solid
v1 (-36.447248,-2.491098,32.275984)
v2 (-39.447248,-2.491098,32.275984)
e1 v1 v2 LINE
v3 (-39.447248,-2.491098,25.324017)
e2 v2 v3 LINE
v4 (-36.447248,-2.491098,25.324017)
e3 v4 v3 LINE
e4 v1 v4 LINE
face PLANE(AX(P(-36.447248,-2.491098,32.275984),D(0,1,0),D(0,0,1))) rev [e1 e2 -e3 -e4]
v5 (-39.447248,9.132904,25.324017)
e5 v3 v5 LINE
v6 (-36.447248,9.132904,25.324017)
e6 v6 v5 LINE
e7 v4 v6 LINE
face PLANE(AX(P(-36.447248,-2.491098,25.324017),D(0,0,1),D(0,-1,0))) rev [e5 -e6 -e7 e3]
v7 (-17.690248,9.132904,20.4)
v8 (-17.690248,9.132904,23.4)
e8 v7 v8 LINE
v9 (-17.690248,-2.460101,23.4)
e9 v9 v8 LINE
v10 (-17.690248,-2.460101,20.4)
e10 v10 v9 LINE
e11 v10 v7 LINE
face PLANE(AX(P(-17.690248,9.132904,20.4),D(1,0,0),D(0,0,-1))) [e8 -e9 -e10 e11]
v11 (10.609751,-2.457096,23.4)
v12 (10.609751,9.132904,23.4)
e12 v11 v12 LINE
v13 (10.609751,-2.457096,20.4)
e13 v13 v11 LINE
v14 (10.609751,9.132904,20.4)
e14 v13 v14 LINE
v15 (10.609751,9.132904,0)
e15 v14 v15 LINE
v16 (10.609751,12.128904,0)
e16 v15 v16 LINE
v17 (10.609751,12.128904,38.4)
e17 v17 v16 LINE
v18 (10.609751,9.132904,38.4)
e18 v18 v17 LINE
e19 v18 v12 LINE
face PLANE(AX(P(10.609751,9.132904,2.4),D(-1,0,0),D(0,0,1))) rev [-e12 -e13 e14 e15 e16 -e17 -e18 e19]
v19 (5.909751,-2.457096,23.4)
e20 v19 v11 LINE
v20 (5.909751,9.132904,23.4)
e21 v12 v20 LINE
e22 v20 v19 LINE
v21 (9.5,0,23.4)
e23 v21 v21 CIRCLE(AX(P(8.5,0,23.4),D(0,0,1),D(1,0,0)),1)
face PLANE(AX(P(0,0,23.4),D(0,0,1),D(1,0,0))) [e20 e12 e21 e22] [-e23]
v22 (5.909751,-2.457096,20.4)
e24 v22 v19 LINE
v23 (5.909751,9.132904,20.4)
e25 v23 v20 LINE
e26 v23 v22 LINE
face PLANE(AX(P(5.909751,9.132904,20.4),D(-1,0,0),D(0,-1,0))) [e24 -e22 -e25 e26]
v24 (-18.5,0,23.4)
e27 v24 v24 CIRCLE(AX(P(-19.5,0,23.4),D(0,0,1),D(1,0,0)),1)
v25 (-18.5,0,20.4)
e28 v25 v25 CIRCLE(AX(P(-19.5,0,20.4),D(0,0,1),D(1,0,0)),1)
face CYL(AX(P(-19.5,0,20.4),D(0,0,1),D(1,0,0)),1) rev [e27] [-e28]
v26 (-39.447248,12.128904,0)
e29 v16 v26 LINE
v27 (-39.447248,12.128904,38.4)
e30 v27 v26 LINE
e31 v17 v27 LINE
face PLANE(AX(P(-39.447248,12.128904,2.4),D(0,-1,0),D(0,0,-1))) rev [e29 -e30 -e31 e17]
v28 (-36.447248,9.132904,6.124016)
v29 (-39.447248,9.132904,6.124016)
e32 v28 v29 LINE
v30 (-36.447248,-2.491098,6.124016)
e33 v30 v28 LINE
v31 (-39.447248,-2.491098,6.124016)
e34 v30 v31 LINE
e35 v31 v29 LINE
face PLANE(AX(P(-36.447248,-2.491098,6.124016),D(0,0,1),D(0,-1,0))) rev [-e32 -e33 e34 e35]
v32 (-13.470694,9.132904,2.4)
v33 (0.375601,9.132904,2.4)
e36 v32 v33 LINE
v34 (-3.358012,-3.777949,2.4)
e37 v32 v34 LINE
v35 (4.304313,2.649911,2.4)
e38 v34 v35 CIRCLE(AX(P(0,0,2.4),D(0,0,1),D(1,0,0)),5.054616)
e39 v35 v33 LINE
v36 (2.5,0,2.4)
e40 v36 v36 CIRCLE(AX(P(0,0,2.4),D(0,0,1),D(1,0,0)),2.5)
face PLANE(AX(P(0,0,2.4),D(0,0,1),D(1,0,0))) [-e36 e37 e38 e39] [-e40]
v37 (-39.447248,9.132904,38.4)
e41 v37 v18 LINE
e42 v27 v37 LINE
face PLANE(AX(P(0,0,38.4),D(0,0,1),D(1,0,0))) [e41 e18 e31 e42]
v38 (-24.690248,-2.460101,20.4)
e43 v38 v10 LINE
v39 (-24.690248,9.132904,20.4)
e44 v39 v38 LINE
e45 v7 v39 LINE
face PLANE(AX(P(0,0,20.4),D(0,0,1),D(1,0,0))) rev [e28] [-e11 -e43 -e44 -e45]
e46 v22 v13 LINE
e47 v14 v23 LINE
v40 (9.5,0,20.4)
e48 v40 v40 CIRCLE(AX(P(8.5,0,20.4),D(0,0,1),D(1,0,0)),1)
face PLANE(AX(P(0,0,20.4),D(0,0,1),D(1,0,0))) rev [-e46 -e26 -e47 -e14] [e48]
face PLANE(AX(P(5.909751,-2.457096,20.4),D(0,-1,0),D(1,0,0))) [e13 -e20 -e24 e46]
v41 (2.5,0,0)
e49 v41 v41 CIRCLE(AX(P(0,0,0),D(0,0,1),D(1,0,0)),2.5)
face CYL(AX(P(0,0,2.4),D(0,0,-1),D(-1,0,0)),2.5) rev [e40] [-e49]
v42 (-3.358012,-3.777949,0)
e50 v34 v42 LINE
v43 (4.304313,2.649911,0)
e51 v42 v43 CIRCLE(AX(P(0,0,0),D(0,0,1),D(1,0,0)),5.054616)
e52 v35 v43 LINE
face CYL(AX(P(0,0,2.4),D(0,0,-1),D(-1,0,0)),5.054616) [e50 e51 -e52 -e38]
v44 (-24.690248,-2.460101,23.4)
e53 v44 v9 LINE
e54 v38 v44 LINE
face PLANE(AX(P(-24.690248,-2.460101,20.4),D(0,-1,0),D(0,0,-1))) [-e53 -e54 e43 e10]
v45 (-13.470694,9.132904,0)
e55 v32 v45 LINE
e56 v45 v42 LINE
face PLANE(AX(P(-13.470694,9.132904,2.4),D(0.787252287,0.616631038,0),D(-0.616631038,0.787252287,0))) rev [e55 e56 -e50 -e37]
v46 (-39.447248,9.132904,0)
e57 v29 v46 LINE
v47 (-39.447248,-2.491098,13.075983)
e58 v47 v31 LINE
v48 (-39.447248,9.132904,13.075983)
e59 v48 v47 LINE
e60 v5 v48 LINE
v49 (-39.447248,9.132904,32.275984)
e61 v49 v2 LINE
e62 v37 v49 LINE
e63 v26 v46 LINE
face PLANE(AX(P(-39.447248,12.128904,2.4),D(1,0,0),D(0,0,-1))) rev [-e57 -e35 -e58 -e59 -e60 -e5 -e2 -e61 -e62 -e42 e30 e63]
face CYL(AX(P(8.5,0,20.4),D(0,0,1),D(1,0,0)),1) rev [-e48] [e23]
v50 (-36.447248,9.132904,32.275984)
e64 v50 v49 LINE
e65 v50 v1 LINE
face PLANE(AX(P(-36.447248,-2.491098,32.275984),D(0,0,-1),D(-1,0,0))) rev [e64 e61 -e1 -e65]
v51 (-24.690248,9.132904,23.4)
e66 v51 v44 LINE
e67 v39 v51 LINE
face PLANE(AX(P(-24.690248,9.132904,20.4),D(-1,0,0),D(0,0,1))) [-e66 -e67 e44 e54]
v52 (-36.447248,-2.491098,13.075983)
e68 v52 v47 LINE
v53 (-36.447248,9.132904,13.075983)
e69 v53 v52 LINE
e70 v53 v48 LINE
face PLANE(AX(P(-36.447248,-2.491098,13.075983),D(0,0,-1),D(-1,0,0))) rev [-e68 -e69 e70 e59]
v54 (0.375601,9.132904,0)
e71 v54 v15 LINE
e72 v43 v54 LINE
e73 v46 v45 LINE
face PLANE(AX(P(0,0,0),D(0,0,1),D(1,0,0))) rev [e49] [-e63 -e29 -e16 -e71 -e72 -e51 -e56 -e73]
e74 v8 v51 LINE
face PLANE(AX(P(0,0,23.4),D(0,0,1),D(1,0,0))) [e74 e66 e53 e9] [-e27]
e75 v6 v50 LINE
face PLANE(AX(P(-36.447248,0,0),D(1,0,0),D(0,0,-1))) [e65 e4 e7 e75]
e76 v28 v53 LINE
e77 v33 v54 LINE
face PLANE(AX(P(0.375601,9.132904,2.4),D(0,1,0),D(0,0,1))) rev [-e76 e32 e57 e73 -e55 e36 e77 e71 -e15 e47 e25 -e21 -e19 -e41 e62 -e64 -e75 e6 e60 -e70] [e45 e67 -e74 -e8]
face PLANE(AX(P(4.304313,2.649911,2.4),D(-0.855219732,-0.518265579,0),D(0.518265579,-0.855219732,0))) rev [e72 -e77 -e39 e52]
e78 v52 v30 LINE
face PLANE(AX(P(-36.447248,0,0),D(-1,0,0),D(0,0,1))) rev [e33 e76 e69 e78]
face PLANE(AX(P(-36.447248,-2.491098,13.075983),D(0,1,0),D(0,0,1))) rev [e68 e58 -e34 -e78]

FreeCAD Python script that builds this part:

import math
import FreeCAD as App
import Part
import Sketcher

doc = App.newDocument("Part")
params = doc.addObject("Spreadsheet::Sheet", "Params")
for row, (alias, value) in enumerate([
    ("sketch1_diameter", "5 mm"),
    ("pad1_length", "2.4 mm"),
    ("pad2_length", "36 mm"),
    ("sketch3_diameter", "2 mm"),
    ("sketch3_width", "7 mm"),
    ("sketch3_width2", "4.7 mm"),
    ("sketch3_height", "11.59 mm"),
    ("pad3_length", "3 mm"),
    ("pad4_length", "3 mm"),
], start=1):
    params.set(f"A{row}", alias)
    params.set(f"B{row}", "=" + value)
    params.setAlias(f"B{row}", alias)

body = doc.addObject("PartDesign::Body", "Body")

# Sketch on XY plane
sketch1 = body.newObject("Sketcher::SketchObject", "Sketch")
sketch1.AttachmentSupport = (doc.getObject("XY_Plane"), [""])
sketch1.MapMode = "FlatFace"
sketch1.addGeometry([
    Part.LineSegment(App.Vector(10.6, 12.1, 0), App.Vector(-39.4, 12.1, 0)),  # 0
    Part.LineSegment(App.Vector(-39.4, 12.1, 0), App.Vector(-39.4, 9.1, 0)),  # 1
    Part.LineSegment(App.Vector(-39.4, 9.1, 0), App.Vector(-13.5, 9.1, 0)),  # 2
    Part.LineSegment(App.Vector(-13.5, 9.1, 0), App.Vector(-3.4, -3.8, 0)),  # 3
    Part.ArcOfCircle(Part.Circle(App.Vector(0, 0, 0), App.Vector(0, 0, 1), 5.1), math.radians(-132), math.radians(32)),  # 4
    Part.LineSegment(App.Vector(4.3, 2.6, 0), App.Vector(0.4, 9.1, 0)),  # 5
    Part.LineSegment(App.Vector(0.4, 9.1, 0), App.Vector(10.6, 9.1, 0)),  # 6
    Part.LineSegment(App.Vector(10.6, 9.1, 0), App.Vector(10.6, 12.1, 0)),  # 7
    Part.Circle(App.Vector(0, 0, 0), App.Vector(0, 0, 1), 2.5),  # 8
], False)
sketch1.addConstraint([
    Sketcher.Constraint("Coincident", 0, 2, 1, 1),
    Sketcher.Constraint("Coincident", 1, 2, 2, 1),
    Sketcher.Constraint("Coincident", 2, 2, 3, 1),
    Sketcher.Constraint("Coincident", 3, 2, 4, 1),
    Sketcher.Constraint("Coincident", 4, 2, 5, 1),
    Sketcher.Constraint("Coincident", 5, 2, 6, 1),
    Sketcher.Constraint("Coincident", 6, 2, 7, 1),
    Sketcher.Constraint("Coincident", 7, 2, 0, 1),
    Sketcher.Constraint("Horizontal", 0),
    Sketcher.Constraint("Vertical", 1),
    Sketcher.Constraint("Horizontal", 2),
    Sketcher.Constraint("Horizontal", 6),
    Sketcher.Constraint("Vertical", 7),
    Sketcher.Constraint("Coincident", 4, 3, -1, 1),
    Sketcher.Constraint("Coincident", 8, 3, -1, 1),
    Sketcher.Constraint("Horizontal", 2, 2, 5, 2),
    Sketcher.Constraint("Diameter", 8, 5.0),
    Sketcher.Constraint("DistanceX", 0, 2, 0, 1, 50.056999),
    Sketcher.Constraint("DistanceY", 1, 2, 1, 1, 2.996),
    Sketcher.Constraint("Radius", 4, 5.054616),
    Sketcher.Constraint("Distance", 5, 7.580499),
    Sketcher.Constraint("DistanceX", 6, 1, 6, 2, 10.23415),
    Sketcher.Constraint("DistanceX", -1, 1, 5, 2, 0.375601),
    Sketcher.Constraint("Distance", 3, 16.399892),
    Sketcher.Constraint("DistanceX", 2, 1, 2, 2, 25.976554),
    Sketcher.Constraint("DistanceX", 3, 2, -1, 1, 3.358012),
])
sketch1.setExpression("Constraints[16]", "Params.sketch1_diameter")
pad1 = body.newObject("PartDesign::Pad", "Pad")
pad1.Profile = sketch1
pad1.setExpression("Length", "Params.pad1_length")

# Sketch on XY plane
sketch2 = body.newObject("Sketcher::SketchObject", "Sketch001")
sketch2.AttachmentSupport = (doc.getObject("XY_Plane"), [""])
sketch2.MapMode = "FlatFace"
sketch2.AttachmentOffset = App.Placement(App.Vector(0, 0, 2.4), App.Rotation())
sketch2.addGeometry([
    Part.LineSegment(App.Vector(-39.4, 12.1, 0), App.Vector(-39.4, 9.1, 0)),
    Part.LineSegment(App.Vector(-39.4, 9.1, 0), App.Vector(10.6, 9.1, 0)),
    Part.LineSegment(App.Vector(10.6, 9.1, 0), App.Vector(10.6, 12.1, 0)),
    Part.LineSegment(App.Vector(10.6, 12.1, 0), App.Vector(-39.4, 12.1, 0)),
], False)
sketch2.addConstraint([
    Sketcher.Constraint("Coincident", 0, 2, 1, 1),
    Sketcher.Constraint("Coincident", 1, 2, 2, 1),
    Sketcher.Constraint("Coincident", 2, 2, 3, 1),
    Sketcher.Constraint("Coincident", 3, 2, 0, 1),
    Sketcher.Constraint("Vertical", 0),
    Sketcher.Constraint("Horizontal", 1),
    Sketcher.Constraint("Vertical", 2),
    Sketcher.Constraint("Horizontal", 3),
    Sketcher.Constraint("DistanceX", 1, 1, 1, 2, 50.056999),
    Sketcher.Constraint("DistanceY", 0, 2, 0, 1, 2.996),
    Sketcher.Constraint("DistanceX", 0, 2, -1, 1, 39.447248),
    Sketcher.Constraint("DistanceY", -1, 1, 0, 2, 9.132904),
])
pad2 = body.newObject("PartDesign::Pad", "Pad001")
pad2.Profile = sketch2
pad2.setExpression("Length", "Params.pad2_length")

# Sketch on XY plane
sketch3 = body.newObject("Sketcher::SketchObject", "Sketch002")
sketch3.AttachmentSupport = (doc.getObject("XY_Plane"), [""])
sketch3.MapMode = "FlatFace"
sketch3.AttachmentOffset = App.Placement(App.Vector(0, 0, 23.4), App.Rotation())
sketch3.addGeometry([
    Part.LineSegment(App.Vector(5.9, 9.1, 0), App.Vector(5.9, -2.5, 0)),  # 0
    Part.LineSegment(App.Vector(5.9, -2.5, 0), App.Vector(10.6, -2.5, 0)),  # 1
    Part.LineSegment(App.Vector(10.6, -2.5, 0), App.Vector(10.6, 9.1, 0)),  # 2
    Part.LineSegment(App.Vector(10.6, 9.1, 0), App.Vector(5.9, 9.1, 0)),  # 3
    Part.Circle(App.Vector(8.5, 0, 0), App.Vector(0, 0, 1), 1),  # 4
    Part.LineSegment(App.Vector(-24.7, 9.1, 0), App.Vector(-24.7, -2.5, 0)),  # 5
    Part.LineSegment(App.Vector(-24.7, -2.5, 0), App.Vector(-17.7, -2.5, 0)),  # 6
    Part.LineSegment(App.Vector(-17.7, -2.5, 0), App.Vector(-17.7, 9.1, 0)),  # 7
    Part.LineSegment(App.Vector(-17.7, 9.1, 0), App.Vector(-24.7, 9.1, 0)),  # 8
    Part.Circle(App.Vector(-19.5, 0, 0), App.Vector(0, 0, 1), 1),  # 9
], False)
sketch3.addConstraint([
    Sketcher.Constraint("Coincident", 0, 2, 1, 1),
    Sketcher.Constraint("Coincident", 1, 2, 2, 1),
    Sketcher.Constraint("Coincident", 2, 2, 3, 1),
    Sketcher.Constraint("Coincident", 3, 2, 0, 1),
    Sketcher.Constraint("Coincident", 5, 2, 6, 1),
    Sketcher.Constraint("Coincident", 6, 2, 7, 1),
    Sketcher.Constraint("Coincident", 7, 2, 8, 1),
    Sketcher.Constraint("Coincident", 8, 2, 5, 1),
    Sketcher.Constraint("Vertical", 0),
    Sketcher.Constraint("Horizontal", 1),
    Sketcher.Constraint("Vertical", 2),
    Sketcher.Constraint("Horizontal", 3),
    Sketcher.Constraint("Vertical", 5),
    Sketcher.Constraint("Horizontal", 6),
    Sketcher.Constraint("Vertical", 7),
    Sketcher.Constraint("Horizontal", 8),
    Sketcher.Constraint("Equal", 4, 9),
    Sketcher.Constraint("PointOnObject", 4, 3, -1),
    Sketcher.Constraint("PointOnObject", 9, 3, -1),
    Sketcher.Constraint("Horizontal", 3, 2, 7, 2),
    Sketcher.Constraint("Diameter", 4, 2.0),
    Sketcher.Constraint("DistanceX", 6, 1, 6, 2, 7.0),
    Sketcher.Constraint("DistanceX", 1, 1, 1, 2, 4.7),
    Sketcher.Constraint("DistanceX", 9, 3, 4, 3, 28.0),
    Sketcher.Constraint("DistanceY", 0, 2, 0, 1, 11.59),
    Sketcher.Constraint("DistanceX", -1, 1, 4, 3, 8.5),
    Sketcher.Constraint("DistanceX", 5, 2, 0, 2, 30.599999),
    Sketcher.Constraint("DistanceY", 5, 2, -1, 1, 2.460101),
    Sketcher.Constraint("DistanceY", 5, 2, 5, 1, 11.593004),
    Sketcher.Constraint("DistanceX", -1, 1, 0, 2, 5.909751),
])
sketch3.setExpression("Constraints[20]", "Params.sketch3_diameter")
sketch3.setExpression("Constraints[21]", "Params.sketch3_width")
sketch3.setExpression("Constraints[22]", "Params.sketch3_width2")
sketch3.setExpression("Constraints[24]", "Params.sketch3_height")
pad3 = body.newObject("PartDesign::Pad", "Pad002")
pad3.Profile = sketch3
pad3.setExpression("Length", "Params.pad3_length")
pad3.Reversed = True

# Sketch on YZ plane
sketch4 = body.newObject("Sketcher::SketchObject", "Sketch003")
sketch4.AttachmentSupport = (doc.getObject("YZ_Plane"), [""])
sketch4.MapMode = "FlatFace"
sketch4.AttachmentOffset = App.Placement(App.Vector(0, 0, -39.447248), App.Rotation())
sketch4.addGeometry([
    Part.LineSegment(App.Vector(9, 13, 0), App.Vector(-2, 13, 0)),  # 0
    Part.LineSegment(App.Vector(-2, 13, 0), App.Vector(-2, 6, 0)),  # 1
    Part.LineSegment(App.Vector(-2, 6, 0), App.Vector(9, 6, 0)),  # 2
    Part.LineSegment(App.Vector(9, 6, 0), App.Vector(9, 13, 0)),  # 3
    Part.LineSegment(App.Vector(9, 32, 0), App.Vector(-2, 32, 0)),  # 4
    Part.LineSegment(App.Vector(-2, 32, 0), App.Vector(-2, 25, 0)),  # 5
    Part.LineSegment(App.Vector(-2, 25, 0), App.Vector(9, 25, 0)),  # 6
    Part.LineSegment(App.Vector(9, 25, 0), App.Vector(9, 32, 0)),  # 7
], False)
sketch4.addConstraint([
    Sketcher.Constraint("Coincident", 0, 2, 1, 1),
    Sketcher.Constraint("Coincident", 1, 2, 2, 1),
    Sketcher.Constraint("Coincident", 2, 2, 3, 1),
    Sketcher.Constraint("Coincident", 3, 2, 0, 1),
    Sketcher.Constraint("Coincident", 4, 2, 5, 1),
    Sketcher.Constraint("Coincident", 5, 2, 6, 1),
    Sketcher.Constraint("Coincident", 6, 2, 7, 1),
    Sketcher.Constraint("Coincident", 7, 2, 4, 1),
    Sketcher.Constraint("Horizontal", 0),
    Sketcher.Constraint("Vertical", 1),
    Sketcher.Constraint("Horizontal", 2),
    Sketcher.Constraint("Vertical", 3),
    Sketcher.Constraint("Horizontal", 4),
    Sketcher.Constraint("Vertical", 5),
    Sketcher.Constraint("Horizontal", 6),
    Sketcher.Constraint("Vertical", 7),
    Sketcher.Constraint("Vertical", 1, 2, 4, 2),
    Sketcher.Constraint("Vertical", 3, 2, 6, 2),
    Sketcher.Constraint("Equal", 3, 5),
    Sketcher.Constraint("DistanceY", 0, 2, 4, 2, 19.200001),
    Sketcher.Constraint("DistanceX", 0, 2, -1, 1, 2.491098),
    Sketcher.Constraint("DistanceX", 0, 2, 0, 1, 11.624002),
    Sketcher.Constraint("DistanceY", 1, 2, 1, 1, 6.951967),
    Sketcher.Constraint("DistanceY", -1, 1, 0, 2, 13.075983),
])
pad4 = body.newObject("PartDesign::Pad", "Pad003")
pad4.Profile = sketch4
pad4.setExpression("Length", "Params.pad4_length")

doc.recompute()
